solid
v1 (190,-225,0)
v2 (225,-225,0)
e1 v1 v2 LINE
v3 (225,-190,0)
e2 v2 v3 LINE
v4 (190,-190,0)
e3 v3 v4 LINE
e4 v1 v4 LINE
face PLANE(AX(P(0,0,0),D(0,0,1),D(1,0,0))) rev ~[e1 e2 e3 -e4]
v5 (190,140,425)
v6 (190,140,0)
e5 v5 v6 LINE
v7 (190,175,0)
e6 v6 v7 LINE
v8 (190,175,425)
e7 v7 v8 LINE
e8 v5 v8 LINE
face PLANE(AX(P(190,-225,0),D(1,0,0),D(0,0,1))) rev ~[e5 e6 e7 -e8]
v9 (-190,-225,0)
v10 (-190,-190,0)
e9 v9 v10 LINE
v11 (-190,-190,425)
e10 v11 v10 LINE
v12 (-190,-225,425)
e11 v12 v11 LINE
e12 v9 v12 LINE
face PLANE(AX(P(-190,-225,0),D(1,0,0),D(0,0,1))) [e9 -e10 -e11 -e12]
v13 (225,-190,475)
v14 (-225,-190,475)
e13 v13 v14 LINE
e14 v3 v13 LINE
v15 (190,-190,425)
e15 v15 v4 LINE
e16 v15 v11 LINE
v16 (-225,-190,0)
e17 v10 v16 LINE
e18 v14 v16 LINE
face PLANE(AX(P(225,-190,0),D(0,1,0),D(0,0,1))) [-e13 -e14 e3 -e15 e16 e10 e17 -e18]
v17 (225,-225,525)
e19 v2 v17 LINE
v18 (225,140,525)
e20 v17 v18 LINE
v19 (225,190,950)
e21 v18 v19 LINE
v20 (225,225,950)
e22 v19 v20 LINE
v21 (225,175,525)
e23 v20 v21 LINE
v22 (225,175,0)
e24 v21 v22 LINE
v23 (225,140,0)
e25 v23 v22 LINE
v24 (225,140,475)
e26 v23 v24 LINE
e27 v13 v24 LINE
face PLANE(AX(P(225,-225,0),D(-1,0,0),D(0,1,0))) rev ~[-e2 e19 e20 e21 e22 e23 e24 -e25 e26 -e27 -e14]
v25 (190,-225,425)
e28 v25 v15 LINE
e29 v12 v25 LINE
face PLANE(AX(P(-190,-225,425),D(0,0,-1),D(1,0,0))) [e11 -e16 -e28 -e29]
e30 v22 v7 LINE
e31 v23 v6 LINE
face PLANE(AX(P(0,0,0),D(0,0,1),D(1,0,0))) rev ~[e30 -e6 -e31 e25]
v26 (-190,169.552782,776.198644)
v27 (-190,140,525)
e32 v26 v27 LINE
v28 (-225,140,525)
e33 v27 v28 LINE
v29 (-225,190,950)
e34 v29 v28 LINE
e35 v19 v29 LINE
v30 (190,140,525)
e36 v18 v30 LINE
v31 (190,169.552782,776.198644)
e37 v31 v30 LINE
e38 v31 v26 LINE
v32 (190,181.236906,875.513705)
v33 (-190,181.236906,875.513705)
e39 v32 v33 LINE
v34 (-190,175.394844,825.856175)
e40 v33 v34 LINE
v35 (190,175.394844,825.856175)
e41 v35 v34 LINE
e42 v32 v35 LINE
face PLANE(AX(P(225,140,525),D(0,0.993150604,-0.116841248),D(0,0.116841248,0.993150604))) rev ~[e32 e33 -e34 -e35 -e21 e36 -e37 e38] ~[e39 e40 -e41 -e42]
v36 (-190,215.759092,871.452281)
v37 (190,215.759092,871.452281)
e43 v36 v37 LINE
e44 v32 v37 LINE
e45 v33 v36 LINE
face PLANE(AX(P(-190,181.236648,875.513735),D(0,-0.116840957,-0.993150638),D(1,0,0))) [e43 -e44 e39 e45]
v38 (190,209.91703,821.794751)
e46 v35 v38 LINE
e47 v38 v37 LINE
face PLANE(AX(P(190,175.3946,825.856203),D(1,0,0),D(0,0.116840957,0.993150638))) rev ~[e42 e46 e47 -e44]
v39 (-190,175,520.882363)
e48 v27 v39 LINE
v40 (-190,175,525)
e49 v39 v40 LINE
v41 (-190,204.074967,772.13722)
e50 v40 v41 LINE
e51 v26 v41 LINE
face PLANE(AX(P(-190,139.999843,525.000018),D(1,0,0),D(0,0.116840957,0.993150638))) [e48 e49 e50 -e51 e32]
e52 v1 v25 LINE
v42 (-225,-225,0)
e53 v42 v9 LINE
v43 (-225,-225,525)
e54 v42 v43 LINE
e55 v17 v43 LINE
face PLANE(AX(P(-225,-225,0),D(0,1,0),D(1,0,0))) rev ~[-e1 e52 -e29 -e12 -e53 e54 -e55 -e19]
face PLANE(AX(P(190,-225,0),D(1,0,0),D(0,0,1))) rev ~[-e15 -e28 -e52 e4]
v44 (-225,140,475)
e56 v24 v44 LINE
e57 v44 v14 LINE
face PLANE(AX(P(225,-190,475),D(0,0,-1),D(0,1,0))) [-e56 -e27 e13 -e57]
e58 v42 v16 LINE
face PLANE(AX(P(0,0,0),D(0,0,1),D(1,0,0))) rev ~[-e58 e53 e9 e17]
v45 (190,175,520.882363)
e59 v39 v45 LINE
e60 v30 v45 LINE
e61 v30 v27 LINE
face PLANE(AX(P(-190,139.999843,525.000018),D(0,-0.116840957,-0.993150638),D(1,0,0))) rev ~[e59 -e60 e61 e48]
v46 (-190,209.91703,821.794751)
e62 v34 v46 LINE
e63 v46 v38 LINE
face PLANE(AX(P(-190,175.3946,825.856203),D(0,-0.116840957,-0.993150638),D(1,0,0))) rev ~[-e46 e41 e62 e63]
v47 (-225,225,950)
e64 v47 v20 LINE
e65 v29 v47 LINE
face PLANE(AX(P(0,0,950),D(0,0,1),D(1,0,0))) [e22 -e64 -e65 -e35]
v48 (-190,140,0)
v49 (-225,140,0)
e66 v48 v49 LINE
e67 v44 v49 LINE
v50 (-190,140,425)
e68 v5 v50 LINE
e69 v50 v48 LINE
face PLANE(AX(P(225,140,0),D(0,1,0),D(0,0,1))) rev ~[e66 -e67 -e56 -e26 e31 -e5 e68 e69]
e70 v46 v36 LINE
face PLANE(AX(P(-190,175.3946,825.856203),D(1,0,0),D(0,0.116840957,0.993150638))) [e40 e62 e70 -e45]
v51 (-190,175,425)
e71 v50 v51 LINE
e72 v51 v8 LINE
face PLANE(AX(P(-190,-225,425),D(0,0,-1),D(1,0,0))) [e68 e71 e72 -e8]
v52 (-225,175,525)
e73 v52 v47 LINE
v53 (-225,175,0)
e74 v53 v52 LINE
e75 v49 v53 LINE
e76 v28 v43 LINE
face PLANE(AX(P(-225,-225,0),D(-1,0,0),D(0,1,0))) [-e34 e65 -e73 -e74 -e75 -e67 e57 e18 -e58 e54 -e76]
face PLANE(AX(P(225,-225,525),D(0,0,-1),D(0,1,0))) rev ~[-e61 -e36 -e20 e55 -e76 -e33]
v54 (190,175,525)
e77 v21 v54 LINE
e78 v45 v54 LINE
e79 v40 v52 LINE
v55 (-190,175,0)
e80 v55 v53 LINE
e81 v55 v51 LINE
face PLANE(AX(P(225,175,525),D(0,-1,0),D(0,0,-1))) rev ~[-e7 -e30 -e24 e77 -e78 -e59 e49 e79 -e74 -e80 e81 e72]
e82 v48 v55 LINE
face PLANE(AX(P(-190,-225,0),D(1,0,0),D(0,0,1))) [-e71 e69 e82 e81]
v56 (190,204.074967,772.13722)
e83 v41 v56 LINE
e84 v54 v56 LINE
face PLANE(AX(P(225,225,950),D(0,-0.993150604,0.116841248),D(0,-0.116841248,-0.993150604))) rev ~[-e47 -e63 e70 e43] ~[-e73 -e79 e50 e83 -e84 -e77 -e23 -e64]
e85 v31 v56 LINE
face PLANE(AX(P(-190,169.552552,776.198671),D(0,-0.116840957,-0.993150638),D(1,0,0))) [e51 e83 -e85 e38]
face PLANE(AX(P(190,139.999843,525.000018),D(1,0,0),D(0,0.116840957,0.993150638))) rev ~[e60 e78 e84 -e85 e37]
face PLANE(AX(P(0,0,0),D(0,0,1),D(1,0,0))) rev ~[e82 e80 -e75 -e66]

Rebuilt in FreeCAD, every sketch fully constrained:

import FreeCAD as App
import Part
import Sketcher

V = App.Vector


def add_polygon(sketch, points):
    """Adds a closed chain of lines whose ends are joined by coincident constraints."""
    first, n = sketch.GeometryCount, len(points)
    for a, b in zip(points, points[1:] + points[:1]):
        sketch.addGeometry(Part.LineSegment(App.Vector(*a, 0), App.Vector(*b, 0)), False)
    for i in range(n):
        sketch.addConstraint(Sketcher.Constraint("Coincident", first + i, 2, first + (i + 1) % n, 1))

doc = App.newDocument("Part")
body = doc.addObject("PartDesign::Body", "Body")

# Sketch on XY plane
sketch1 = body.newObject("Sketcher::SketchObject", "Sketch")
sketch1.AttachmentSupport = (doc.getObject("XY_Plane"), [""])
sketch1.MapMode = "FlatFace"
add_polygon(sketch1, [(-225, 225), (-225, -225), (225, -225), (225, 225)])  # lines 0-3
sketch1.addConstraint(Sketcher.Constraint("Vertical", 0))
sketch1.addConstraint(Sketcher.Constraint("Horizontal", 1))
sketch1.addConstraint(Sketcher.Constraint("Vertical", 2))
sketch1.addConstraint(Sketcher.Constraint("Horizontal", 3))
sketch1.addConstraint(Sketcher.Constraint("Symmetric", 0, 2, 2, 2, -1, 1))
sketch1.addConstraint(Sketcher.Constraint("Equal", 3, 0))
sketch1.addConstraint(Sketcher.Constraint("DistanceX", 1, 1, 1, 2, 450.0))
pad1 = body.newObject("PartDesign::Pad", "Pad")
pad1.Profile = sketch1
pad1.Length = 950

# Sketch on YZ plane
sketch2 = body.newObject("Sketcher::SketchObject", "Sketch001")
sketch2.AttachmentSupport = (doc.getObject("YZ_Plane"), [""])
sketch2.MapMode = "FlatFace"
sketch2.AttachmentOffset = App.Placement(V(0, 0, 225), App.Rotation())
add_polygon(sketch2, [(-225, 950), (-225, 525), (140, 525), (190, 950)])  # lines 0-3
add_polygon(sketch2, [(-190, 475), (-190, 0), (140, 0), (140, 475)])  # lines 4-7
add_polygon(sketch2, [(225, 950), (175, 525), (175, 0), (225, 0)])  # lines 8-11
sketch2.addConstraint(Sketcher.Constraint("Vertical", 0))
sketch2.addConstraint(Sketcher.Constraint("Horizontal", 1))
sketch2.addConstraint(Sketcher.Constraint("Horizontal", 3))
sketch2.addConstraint(Sketcher.Constraint("Vertical", 4))
sketch2.addConstraint(Sketcher.Constraint("Horizontal", 5))
sketch2.addConstraint(Sketcher.Constraint("Vertical", 6))
sketch2.addConstraint(Sketcher.Constraint("Horizontal", 7))
sketch2.addConstraint(Sketcher.Constraint("Vertical", 9))
sketch2.addConstraint(Sketcher.Constraint("Horizontal", 10))
sketch2.addConstraint(Sketcher.Constraint("Vertical", 11))
sketch2.addConstraint(Sketcher.Constraint("Symmetric", 3, 2, 11, 2, -2))
sketch2.addConstraint(Sketcher.Constraint("PointOnObject", 4, 2, -1))
sketch2.addConstraint(Sketcher.Constraint("PointOnObject", 9, 2, -1))
sketch2.addConstraint(Sketcher.Constraint("Parallel", 2, 8))
sketch2.addConstraint(Sketcher.Constraint("Horizontal", 1, 2, 8, 2))
sketch2.addConstraint(Sketcher.Constraint("Vertical", 1, 2, 5, 2))
sketch2.addConstraint(Sketcher.Constraint("DistanceX", 1, 1, 1, 2, 365.0))
sketch2.addConstraint(Sketcher.Constraint("DistanceX", 3, 2, 3, 1, 415.0))
sketch2.addConstraint(Sketcher.Constraint("DistanceX", 5, 1, 5, 2, 330.0))
sketch2.addConstraint(Sketcher.Constraint("DistanceY", 0, 2, 0, 1, 425.0))
sketch2.addConstraint(Sketcher.Constraint("DistanceY", 4, 2, 4, 1, 475.0))
sketch2.addConstraint(Sketcher.Constraint("DistanceY", 9, 2, 9, 1, 525.0))
sketch2.addConstraint(Sketcher.Constraint("DistanceX", 0, 2, -1, 1, 225.0))
pocket1 = body.newObject("PartDesign::Pocket", "Pocket")
pocket1.Profile = sketch2
pocket1.Type = "ThroughAll"

# Sketch on XZ plane
sketch3 = body.newObject("Sketcher::SketchObject", "Sketch002")
sketch3.AttachmentSupport = (doc.getObject("XZ_Plane"), [""])
sketch3.MapMode = "FlatFace"
sketch3.AttachmentOffset = App.Placement(V(0, 0, 225), App.Rotation())
add_polygon(sketch3, [(-190, 425), (-190, 0), (190, 0), (190, 425)])  # lines 0-3
sketch3.addConstraint(Sketcher.Constraint("Vertical", 0))
sketch3.addConstraint(Sketcher.Constraint("Horizontal", 1))
sketch3.addConstraint(Sketcher.Constraint("Vertical", 2))
sketch3.addConstraint(Sketcher.Constraint("Horizontal", 3))
sketch3.addConstraint(Sketcher.Constraint("Symmetric", 0, 2, 1, 2, -1, 1))
sketch3.addConstraint(Sketcher.Constraint("DistanceX", 1, 1, 1, 2, 380.0))
sketch3.addConstraint(Sketcher.Constraint("DistanceY", 0, 2, 0, 1, 425.0))
pocket2 = body.newObject("PartDesign::Pocket", "Pocket001")
pocket2.Profile = sketch3
pocket2.Type = "ThroughAll"

# Sketch on an angled plane
sketch4 = body.newObject("Sketcher::SketchObject", "Sketch003")
sketch4.Placement = App.Placement(V(0, 77.167235, -9.078498), App.Rotation(V(1, 0, 0), V(0, 0.116840957, 0.993150638), V(0, -0.993150638, 0.116840957), "ZXY"))
add_polygon(sketch4, [(-190, 890.69291), (-190, 840.69291), (190, 840.69291), (190, 890.69291)])  # lines 0-3
add_polygon(sketch4, [(-190, 790.69291), (-190, 537.761841), (190, 537.761841), (190, 790.69291)])  # lines 4-7
sketch4.addConstraint(Sketcher.Constraint("Vertical", 0))
sketch4.addConstraint(Sketcher.Constraint("Horizontal", 1))
sketch4.addConstraint(Sketcher.Constraint("Vertical", 2))
sketch4.addConstraint(Sketcher.Constraint("Horizontal", 3))
sketch4.addConstraint(Sketcher.Constraint("Vertical", 4))
sketch4.addConstraint(Sketcher.Constraint("Horizontal", 5))
sketch4.addConstraint(Sketcher.Constraint("Vertical", 6))
sketch4.addConstraint(Sketcher.Constraint("Horizontal", 7))
sketch4.addConstraint(Sketcher.Constraint("Vertical", 3, 2, 4, 2))
sketch4.addConstraint(Sketcher.Constraint("Vertical", 2, 2, 5, 2))
sketch4.addConstraint(Sketcher.Constraint("DistanceX", 1, 1, 1, 2, 380.0))
sketch4.addConstraint(Sketcher.Constraint("DistanceY", 0, 2, 0, 1, 50.0))
sketch4.addConstraint(Sketcher.Constraint("DistanceX", 0, 2, -1, 1, 190.0))
sketch4.addConstraint(Sketcher.Constraint("DistanceY", 6, 2, 1, 2, 50.0))
sketch4.addConstraint(Sketcher.Constraint("DistanceY", 4, 2, 4, 1, 252.931069))
sketch4.addConstraint(Sketcher.Constraint("DistanceY", -1, 1, 0, 2, 840.69291))
pocket3 = body.newObject("PartDesign::Pocket", "Pocket002")
pocket3.Profile = sketch4
pocket3.Type = "ThroughAll"

doc.recompute()
